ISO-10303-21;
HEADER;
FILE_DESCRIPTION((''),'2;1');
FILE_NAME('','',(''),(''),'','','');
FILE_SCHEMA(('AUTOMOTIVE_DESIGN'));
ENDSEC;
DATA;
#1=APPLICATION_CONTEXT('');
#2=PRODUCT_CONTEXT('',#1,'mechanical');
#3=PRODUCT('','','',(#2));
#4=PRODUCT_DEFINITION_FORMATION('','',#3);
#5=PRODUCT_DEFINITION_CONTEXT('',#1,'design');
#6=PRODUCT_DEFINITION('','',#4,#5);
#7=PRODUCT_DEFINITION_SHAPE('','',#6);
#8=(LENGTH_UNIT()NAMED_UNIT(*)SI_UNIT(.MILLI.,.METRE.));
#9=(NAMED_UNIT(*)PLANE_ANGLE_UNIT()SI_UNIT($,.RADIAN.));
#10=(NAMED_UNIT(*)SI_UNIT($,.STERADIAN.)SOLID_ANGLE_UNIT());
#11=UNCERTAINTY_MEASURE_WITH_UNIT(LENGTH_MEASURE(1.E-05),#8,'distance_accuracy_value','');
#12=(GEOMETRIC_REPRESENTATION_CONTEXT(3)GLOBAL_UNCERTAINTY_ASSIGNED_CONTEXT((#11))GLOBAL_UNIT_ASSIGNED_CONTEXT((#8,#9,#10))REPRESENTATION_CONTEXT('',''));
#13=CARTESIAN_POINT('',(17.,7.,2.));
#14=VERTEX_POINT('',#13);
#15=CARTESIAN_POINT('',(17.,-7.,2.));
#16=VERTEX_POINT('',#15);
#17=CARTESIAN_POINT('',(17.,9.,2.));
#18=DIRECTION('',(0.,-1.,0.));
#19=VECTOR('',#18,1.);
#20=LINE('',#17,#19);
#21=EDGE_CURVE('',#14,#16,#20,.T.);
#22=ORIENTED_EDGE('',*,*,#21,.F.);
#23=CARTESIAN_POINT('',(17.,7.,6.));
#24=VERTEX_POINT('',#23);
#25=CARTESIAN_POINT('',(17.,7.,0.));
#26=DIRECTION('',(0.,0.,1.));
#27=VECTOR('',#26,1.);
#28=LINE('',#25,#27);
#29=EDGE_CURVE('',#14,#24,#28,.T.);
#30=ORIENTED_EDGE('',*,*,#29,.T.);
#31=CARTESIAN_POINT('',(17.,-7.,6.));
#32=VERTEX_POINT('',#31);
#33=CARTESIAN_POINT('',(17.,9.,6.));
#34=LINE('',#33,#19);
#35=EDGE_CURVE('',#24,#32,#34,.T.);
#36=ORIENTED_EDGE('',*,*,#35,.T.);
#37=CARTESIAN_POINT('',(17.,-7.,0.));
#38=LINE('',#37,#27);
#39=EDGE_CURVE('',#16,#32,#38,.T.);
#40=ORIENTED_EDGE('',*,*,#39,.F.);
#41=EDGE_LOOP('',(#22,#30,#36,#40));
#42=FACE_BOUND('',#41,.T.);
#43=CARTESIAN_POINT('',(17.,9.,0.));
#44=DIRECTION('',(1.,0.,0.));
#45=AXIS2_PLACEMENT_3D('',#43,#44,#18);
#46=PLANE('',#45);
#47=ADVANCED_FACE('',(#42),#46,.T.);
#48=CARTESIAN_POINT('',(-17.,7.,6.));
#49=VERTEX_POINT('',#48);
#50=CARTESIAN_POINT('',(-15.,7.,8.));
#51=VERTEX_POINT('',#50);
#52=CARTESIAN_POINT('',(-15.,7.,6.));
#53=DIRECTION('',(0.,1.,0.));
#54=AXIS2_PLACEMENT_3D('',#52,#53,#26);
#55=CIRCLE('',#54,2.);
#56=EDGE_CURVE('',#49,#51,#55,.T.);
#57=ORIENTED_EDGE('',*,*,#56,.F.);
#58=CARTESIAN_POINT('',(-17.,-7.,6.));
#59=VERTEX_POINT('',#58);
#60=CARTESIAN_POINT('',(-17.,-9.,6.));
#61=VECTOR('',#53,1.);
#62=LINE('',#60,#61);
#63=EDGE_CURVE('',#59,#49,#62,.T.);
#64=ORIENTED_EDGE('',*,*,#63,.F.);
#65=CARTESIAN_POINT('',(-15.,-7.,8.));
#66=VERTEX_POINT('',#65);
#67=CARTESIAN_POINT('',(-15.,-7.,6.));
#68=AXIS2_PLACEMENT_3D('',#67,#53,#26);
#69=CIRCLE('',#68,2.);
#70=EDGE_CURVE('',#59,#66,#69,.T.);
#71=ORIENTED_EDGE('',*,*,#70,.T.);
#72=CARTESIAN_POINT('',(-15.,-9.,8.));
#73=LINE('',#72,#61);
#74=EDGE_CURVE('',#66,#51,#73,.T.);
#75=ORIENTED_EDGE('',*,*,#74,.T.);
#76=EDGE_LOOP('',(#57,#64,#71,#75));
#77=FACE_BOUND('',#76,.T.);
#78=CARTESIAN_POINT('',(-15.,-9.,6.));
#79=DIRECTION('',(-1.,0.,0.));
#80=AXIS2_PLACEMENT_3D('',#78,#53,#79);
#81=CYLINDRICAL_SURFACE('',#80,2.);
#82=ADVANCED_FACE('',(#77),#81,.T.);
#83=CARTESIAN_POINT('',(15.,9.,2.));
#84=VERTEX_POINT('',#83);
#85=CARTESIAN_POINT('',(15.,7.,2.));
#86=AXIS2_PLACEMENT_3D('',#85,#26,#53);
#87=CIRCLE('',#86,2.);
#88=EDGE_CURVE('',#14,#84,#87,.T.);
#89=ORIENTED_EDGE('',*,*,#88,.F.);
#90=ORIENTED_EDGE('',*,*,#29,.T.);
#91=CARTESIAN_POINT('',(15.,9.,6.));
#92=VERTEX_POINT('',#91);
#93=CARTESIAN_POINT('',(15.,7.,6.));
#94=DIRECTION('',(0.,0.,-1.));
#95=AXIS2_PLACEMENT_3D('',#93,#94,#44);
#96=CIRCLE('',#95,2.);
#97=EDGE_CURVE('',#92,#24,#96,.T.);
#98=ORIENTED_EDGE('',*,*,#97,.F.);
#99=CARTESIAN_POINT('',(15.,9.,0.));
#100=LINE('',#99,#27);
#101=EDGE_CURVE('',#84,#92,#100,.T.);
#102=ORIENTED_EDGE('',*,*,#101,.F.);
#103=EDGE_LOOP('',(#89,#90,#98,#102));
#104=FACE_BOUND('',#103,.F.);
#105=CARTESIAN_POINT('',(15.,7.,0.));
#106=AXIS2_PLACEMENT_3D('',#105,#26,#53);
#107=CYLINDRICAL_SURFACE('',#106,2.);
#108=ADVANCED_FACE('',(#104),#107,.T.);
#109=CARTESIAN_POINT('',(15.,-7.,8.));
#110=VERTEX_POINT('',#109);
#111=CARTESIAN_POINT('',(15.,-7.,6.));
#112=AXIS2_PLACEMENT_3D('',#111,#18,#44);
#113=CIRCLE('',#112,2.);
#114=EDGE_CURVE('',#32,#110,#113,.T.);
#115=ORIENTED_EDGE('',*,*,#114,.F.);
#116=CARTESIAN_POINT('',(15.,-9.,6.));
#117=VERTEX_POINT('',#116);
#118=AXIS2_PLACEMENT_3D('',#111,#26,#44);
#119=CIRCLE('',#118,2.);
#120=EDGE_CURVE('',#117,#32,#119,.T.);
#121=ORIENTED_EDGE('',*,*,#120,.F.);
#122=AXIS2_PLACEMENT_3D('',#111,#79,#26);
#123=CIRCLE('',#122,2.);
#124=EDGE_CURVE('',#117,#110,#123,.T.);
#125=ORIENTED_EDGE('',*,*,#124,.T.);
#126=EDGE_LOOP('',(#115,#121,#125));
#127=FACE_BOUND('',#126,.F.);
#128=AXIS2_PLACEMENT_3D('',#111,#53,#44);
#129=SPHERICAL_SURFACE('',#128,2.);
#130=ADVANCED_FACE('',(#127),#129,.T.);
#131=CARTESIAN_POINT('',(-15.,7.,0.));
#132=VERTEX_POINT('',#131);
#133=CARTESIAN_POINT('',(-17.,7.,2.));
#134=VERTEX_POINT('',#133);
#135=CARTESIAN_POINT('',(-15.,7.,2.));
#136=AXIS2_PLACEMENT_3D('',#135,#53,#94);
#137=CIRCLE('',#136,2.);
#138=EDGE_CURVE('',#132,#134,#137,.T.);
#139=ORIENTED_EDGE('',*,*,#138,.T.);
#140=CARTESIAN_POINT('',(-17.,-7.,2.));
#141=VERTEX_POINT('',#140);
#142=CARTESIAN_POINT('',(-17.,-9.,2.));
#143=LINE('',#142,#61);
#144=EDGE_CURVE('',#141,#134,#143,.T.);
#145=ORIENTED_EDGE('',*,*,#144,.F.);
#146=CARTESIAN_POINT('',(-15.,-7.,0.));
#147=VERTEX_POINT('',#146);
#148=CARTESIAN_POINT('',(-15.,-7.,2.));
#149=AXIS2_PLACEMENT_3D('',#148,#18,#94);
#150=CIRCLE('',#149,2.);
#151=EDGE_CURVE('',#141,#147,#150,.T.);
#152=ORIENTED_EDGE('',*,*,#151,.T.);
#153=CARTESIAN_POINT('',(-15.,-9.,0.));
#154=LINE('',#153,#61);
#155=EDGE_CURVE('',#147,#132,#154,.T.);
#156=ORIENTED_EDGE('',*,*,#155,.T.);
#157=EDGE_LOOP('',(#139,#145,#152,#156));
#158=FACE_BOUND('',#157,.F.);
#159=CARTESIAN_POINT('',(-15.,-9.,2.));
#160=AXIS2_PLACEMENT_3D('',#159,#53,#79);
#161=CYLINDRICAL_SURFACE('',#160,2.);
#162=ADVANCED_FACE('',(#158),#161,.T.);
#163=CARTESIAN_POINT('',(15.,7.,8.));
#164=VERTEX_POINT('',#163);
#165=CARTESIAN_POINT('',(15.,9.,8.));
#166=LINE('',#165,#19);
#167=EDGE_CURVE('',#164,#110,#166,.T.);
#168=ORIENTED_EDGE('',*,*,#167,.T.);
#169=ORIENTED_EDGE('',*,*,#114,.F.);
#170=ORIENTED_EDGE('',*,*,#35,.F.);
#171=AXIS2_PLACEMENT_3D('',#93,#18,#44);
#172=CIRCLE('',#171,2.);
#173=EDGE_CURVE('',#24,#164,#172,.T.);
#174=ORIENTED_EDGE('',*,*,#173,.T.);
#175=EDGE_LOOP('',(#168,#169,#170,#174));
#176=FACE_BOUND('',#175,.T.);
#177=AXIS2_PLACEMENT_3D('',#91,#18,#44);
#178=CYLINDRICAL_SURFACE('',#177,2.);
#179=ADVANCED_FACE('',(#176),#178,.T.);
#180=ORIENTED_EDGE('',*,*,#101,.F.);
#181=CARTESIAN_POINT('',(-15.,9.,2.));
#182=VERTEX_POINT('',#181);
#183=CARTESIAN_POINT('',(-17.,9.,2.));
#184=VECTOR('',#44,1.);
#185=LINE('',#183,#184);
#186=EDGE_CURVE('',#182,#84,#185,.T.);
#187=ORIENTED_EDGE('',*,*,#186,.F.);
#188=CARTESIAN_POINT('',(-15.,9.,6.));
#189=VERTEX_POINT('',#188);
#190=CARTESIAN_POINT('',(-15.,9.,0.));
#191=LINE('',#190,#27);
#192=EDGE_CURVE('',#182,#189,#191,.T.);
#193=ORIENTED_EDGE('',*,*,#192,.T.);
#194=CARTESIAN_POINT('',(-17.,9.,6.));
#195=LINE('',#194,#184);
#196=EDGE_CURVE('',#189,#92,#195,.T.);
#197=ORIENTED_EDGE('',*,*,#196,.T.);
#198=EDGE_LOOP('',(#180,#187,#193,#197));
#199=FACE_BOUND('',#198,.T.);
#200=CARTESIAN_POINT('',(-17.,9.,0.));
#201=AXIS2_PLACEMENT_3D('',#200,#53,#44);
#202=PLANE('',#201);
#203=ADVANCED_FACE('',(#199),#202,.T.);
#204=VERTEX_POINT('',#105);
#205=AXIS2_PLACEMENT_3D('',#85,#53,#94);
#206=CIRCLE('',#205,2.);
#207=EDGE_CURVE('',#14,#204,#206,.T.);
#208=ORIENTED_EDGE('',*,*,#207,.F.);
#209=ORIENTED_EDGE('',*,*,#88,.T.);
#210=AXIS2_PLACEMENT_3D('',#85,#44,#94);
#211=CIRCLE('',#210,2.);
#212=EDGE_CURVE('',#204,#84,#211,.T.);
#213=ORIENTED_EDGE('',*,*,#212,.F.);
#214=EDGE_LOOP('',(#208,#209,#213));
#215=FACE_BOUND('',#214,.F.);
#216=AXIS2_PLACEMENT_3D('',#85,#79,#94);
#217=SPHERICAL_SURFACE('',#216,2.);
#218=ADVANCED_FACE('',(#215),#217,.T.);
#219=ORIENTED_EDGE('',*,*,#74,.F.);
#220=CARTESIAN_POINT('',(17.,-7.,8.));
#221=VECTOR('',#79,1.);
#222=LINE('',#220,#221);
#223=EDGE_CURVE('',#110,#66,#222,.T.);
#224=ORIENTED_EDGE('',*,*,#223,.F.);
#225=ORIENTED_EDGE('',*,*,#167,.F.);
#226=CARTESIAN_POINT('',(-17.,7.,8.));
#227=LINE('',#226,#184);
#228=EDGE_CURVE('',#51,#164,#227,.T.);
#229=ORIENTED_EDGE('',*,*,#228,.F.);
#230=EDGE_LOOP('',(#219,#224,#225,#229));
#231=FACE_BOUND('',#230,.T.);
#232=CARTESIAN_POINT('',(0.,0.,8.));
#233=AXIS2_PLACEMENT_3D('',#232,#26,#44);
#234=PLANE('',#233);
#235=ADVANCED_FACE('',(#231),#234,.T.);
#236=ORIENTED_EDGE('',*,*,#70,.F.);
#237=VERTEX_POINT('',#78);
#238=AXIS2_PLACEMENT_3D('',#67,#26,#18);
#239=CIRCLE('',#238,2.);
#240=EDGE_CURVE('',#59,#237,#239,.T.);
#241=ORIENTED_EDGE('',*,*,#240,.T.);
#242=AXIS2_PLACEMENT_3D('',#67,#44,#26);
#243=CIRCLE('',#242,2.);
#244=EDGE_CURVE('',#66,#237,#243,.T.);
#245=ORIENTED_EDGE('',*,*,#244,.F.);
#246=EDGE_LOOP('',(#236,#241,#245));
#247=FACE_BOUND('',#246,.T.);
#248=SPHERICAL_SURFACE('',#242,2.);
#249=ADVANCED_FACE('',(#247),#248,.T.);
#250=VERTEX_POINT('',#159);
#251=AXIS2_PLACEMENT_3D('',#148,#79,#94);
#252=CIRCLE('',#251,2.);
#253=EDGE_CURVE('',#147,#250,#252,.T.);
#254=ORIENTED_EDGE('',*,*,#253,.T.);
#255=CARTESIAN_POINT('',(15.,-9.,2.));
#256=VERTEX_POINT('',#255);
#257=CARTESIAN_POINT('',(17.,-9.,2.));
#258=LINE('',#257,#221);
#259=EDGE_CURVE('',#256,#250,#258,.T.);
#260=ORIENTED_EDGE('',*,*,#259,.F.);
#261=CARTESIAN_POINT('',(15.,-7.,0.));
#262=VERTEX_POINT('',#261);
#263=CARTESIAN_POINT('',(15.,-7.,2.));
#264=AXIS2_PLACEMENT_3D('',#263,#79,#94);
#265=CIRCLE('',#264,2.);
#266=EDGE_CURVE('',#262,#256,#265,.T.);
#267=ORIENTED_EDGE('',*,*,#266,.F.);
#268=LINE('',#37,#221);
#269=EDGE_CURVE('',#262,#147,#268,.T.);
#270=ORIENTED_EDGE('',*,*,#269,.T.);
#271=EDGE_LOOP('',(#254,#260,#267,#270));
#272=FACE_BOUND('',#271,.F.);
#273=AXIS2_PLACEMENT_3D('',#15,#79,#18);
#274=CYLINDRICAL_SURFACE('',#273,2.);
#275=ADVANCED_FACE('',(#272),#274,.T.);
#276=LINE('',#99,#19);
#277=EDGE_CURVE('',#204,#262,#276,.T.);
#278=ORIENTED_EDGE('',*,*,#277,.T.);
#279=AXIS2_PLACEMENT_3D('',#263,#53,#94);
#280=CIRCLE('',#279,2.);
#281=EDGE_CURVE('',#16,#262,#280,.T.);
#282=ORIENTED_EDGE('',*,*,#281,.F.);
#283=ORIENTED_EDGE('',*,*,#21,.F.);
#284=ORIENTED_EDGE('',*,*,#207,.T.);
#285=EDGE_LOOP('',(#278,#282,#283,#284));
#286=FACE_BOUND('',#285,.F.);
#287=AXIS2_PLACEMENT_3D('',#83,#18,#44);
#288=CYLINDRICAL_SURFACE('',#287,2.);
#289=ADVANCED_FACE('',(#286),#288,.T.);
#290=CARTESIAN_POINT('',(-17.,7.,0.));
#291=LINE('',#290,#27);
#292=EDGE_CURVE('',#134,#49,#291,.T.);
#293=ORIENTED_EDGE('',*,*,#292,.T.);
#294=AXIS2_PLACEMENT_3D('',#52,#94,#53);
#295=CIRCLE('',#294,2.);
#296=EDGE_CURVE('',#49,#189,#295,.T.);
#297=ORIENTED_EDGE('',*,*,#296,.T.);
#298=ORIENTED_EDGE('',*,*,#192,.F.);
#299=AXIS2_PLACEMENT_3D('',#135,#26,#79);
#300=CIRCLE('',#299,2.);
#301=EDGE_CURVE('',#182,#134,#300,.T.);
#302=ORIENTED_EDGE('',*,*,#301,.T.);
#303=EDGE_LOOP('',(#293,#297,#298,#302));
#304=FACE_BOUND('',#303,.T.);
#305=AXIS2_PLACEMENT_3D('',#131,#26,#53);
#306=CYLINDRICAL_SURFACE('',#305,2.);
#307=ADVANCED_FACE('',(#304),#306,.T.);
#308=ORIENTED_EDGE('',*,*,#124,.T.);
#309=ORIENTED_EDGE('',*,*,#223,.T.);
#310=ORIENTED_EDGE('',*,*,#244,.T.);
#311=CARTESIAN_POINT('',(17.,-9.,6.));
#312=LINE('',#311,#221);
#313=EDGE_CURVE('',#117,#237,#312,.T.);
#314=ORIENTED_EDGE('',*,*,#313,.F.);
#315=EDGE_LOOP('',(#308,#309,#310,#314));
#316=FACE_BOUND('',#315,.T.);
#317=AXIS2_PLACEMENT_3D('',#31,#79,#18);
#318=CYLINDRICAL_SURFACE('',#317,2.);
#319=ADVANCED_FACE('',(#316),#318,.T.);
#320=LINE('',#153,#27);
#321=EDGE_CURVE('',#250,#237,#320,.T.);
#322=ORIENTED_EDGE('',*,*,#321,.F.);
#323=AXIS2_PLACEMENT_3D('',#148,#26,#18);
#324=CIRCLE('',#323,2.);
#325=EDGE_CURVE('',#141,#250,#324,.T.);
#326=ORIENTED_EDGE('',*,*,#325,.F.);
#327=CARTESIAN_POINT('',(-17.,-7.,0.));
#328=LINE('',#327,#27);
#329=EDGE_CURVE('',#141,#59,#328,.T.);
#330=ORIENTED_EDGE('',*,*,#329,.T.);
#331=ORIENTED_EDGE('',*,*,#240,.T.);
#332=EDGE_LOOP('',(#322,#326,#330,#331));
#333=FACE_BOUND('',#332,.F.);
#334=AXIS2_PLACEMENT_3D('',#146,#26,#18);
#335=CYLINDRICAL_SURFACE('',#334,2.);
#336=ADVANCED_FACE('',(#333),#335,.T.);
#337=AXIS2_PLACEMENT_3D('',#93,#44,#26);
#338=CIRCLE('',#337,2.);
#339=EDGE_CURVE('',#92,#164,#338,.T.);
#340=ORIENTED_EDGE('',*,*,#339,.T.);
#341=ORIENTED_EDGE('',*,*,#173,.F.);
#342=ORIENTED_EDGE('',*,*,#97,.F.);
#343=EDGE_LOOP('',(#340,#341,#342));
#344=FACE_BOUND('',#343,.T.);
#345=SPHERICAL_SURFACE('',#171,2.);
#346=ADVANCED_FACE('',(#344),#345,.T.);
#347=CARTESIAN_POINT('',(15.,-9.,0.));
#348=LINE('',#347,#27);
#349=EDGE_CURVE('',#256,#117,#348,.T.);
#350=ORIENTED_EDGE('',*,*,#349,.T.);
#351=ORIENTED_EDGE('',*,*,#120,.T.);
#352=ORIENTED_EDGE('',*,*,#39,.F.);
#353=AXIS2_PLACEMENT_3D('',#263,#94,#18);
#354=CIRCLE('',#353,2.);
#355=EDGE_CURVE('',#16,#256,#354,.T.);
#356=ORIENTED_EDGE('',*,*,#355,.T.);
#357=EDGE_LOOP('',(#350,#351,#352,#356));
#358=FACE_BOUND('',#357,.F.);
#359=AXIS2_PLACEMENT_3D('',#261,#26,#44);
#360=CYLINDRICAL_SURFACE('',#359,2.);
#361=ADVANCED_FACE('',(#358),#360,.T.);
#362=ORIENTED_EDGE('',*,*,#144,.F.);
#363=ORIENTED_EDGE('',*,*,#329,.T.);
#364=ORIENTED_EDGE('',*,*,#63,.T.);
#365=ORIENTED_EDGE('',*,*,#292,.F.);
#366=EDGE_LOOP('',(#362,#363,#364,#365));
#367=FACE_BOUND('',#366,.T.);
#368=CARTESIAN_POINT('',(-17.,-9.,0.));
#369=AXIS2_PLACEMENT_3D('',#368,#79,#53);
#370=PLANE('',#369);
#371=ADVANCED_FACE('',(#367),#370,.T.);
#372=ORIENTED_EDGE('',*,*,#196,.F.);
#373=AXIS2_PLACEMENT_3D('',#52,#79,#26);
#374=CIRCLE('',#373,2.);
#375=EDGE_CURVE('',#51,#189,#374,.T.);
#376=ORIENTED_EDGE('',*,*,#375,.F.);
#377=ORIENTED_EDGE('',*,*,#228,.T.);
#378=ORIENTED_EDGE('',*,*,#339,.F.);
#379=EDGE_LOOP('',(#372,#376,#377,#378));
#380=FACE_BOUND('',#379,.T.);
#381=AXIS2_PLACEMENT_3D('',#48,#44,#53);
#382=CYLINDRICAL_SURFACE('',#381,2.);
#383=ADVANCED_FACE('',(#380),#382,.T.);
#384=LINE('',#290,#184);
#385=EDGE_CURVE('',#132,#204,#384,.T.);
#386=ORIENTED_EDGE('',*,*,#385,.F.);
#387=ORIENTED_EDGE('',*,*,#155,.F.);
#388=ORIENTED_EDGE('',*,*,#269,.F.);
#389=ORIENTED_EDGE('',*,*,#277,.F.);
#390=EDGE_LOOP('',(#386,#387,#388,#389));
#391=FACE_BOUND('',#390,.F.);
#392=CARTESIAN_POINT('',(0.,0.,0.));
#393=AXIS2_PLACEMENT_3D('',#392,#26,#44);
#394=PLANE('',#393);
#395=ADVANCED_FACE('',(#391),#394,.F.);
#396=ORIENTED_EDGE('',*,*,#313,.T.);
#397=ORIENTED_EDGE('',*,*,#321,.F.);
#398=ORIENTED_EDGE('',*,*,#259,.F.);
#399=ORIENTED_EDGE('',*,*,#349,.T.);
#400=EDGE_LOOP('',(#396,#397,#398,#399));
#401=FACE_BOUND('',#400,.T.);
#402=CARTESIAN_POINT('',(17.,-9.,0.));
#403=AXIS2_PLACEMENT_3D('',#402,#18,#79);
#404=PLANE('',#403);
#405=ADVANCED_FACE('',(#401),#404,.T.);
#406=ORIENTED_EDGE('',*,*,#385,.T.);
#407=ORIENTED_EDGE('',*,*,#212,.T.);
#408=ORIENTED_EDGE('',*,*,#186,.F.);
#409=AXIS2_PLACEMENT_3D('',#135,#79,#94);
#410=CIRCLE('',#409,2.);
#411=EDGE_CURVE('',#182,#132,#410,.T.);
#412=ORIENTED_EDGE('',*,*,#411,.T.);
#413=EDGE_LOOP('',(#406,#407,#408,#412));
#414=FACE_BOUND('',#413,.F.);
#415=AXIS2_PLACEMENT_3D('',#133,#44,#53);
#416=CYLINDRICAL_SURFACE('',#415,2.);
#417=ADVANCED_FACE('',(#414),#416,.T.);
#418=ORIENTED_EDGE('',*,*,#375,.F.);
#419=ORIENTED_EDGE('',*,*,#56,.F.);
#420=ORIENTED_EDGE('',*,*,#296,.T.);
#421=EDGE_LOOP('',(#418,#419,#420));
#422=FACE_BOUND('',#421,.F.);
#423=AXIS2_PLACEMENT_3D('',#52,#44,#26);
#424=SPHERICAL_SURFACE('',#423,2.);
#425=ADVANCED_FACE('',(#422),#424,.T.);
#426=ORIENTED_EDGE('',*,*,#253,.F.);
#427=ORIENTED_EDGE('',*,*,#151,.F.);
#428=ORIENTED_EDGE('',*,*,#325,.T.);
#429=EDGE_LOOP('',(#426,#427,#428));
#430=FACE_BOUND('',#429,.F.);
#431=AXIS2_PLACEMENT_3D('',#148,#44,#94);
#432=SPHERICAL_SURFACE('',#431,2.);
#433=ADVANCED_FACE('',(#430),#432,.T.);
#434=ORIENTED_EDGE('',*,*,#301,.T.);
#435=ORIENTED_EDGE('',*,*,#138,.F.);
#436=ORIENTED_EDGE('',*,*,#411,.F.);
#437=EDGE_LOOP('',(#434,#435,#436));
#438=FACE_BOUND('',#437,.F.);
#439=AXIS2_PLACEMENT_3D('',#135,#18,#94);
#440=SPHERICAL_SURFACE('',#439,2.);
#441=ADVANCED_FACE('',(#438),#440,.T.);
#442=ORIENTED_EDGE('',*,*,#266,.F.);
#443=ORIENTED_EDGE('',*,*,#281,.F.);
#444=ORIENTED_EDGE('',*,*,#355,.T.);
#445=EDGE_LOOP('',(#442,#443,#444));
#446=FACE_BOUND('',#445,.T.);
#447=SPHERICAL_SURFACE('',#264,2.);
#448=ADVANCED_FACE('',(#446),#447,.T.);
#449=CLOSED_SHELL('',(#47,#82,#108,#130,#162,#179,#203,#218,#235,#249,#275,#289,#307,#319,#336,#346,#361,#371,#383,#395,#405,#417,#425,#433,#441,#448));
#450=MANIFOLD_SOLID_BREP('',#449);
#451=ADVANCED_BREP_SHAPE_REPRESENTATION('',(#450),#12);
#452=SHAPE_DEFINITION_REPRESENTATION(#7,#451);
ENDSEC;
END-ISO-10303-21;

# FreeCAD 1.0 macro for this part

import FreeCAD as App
import Part
import Sketcher
from FreeCAD import Vector
Q = App.Units.Quantity

doc = App.newDocument("Part")
params = doc.addObject("Spreadsheet::Sheet", "Params")
for row, (alias, value) in enumerate([
    ("sketch1_width", "34 mm"),
    ("sketch1_height", "18 mm"),
    ("pad1_length", "8 mm"),
    ("fillet_radius", "2 mm"),
], start=1):
    params.set(f"A{row}", alias)
    params.set(f"B{row}", "=" + value)
    params.setAlias(f"B{row}", alias)

body = doc.addObject("PartDesign::Body", "Body")

# Sketch on XY plane
sketch1 = body.newObject("Sketcher::SketchObject", "Sketch")
sketch1.AttachmentSupport = (doc.getObject("XY_Plane"), [""])
sketch1.MapMode = "FlatFace"
sketch1.addGeometry(Part.LineSegment(Vector(17, 9, 0), Vector(-17, 9, 0)), False)
sketch1.addGeometry(Part.LineSegment(Vector(-17, 9, 0), Vector(-17, -9, 0)), False)
sketch1.addGeometry(Part.LineSegment(Vector(-17, -9, 0), Vector(17, -9, 0)), False)
sketch1.addGeometry(Part.LineSegment(Vector(17, -9, 0), Vector(17, 9, 0)), False)
sketch1.addConstraint(Sketcher.Constraint("Coincident", 0, 2, 1, 1))
sketch1.addConstraint(Sketcher.Constraint("Coincident", 1, 2, 2, 1))
sketch1.addConstraint(Sketcher.Constraint("Coincident", 2, 2, 3, 1))
sketch1.addConstraint(Sketcher.Constraint("Coincident", 3, 2, 0, 1))
sketch1.addConstraint(Sketcher.Constraint("Horizontal", 0))
sketch1.addConstraint(Sketcher.Constraint("Vertical", 1))
sketch1.addConstraint(Sketcher.Constraint("Horizontal", 2))
sketch1.addConstraint(Sketcher.Constraint("Vertical", 3))
sketch1.addConstraint(Sketcher.Constraint("Symmetric", 0, 2, 2, 2, -1, 1))
sketch1.addConstraint(Sketcher.Constraint("DistanceX", 0, 2, 0, 1, Q("34 mm")))
sketch1.addConstraint(Sketcher.Constraint("DistanceY", 1, 2, 1, 1, Q("18 mm")))
sketch1.setExpression("Constraints[9]", "Params.sketch1_width")
sketch1.setExpression("Constraints[10]", "Params.sketch1_height")
pad1 = body.newObject("PartDesign::Pad", "Pad")
pad1.Profile = sketch1
pad1.setExpression("Length", "Params.pad1_length")
doc.recompute()

fillet = body.newObject("PartDesign::Fillet", "Fillet")
fillet.Base = (pad1, ["Edge1"])
fillet.UseAllEdges = True
fillet.setExpression("Radius", "Params.fillet_radius")

doc.recompute()
